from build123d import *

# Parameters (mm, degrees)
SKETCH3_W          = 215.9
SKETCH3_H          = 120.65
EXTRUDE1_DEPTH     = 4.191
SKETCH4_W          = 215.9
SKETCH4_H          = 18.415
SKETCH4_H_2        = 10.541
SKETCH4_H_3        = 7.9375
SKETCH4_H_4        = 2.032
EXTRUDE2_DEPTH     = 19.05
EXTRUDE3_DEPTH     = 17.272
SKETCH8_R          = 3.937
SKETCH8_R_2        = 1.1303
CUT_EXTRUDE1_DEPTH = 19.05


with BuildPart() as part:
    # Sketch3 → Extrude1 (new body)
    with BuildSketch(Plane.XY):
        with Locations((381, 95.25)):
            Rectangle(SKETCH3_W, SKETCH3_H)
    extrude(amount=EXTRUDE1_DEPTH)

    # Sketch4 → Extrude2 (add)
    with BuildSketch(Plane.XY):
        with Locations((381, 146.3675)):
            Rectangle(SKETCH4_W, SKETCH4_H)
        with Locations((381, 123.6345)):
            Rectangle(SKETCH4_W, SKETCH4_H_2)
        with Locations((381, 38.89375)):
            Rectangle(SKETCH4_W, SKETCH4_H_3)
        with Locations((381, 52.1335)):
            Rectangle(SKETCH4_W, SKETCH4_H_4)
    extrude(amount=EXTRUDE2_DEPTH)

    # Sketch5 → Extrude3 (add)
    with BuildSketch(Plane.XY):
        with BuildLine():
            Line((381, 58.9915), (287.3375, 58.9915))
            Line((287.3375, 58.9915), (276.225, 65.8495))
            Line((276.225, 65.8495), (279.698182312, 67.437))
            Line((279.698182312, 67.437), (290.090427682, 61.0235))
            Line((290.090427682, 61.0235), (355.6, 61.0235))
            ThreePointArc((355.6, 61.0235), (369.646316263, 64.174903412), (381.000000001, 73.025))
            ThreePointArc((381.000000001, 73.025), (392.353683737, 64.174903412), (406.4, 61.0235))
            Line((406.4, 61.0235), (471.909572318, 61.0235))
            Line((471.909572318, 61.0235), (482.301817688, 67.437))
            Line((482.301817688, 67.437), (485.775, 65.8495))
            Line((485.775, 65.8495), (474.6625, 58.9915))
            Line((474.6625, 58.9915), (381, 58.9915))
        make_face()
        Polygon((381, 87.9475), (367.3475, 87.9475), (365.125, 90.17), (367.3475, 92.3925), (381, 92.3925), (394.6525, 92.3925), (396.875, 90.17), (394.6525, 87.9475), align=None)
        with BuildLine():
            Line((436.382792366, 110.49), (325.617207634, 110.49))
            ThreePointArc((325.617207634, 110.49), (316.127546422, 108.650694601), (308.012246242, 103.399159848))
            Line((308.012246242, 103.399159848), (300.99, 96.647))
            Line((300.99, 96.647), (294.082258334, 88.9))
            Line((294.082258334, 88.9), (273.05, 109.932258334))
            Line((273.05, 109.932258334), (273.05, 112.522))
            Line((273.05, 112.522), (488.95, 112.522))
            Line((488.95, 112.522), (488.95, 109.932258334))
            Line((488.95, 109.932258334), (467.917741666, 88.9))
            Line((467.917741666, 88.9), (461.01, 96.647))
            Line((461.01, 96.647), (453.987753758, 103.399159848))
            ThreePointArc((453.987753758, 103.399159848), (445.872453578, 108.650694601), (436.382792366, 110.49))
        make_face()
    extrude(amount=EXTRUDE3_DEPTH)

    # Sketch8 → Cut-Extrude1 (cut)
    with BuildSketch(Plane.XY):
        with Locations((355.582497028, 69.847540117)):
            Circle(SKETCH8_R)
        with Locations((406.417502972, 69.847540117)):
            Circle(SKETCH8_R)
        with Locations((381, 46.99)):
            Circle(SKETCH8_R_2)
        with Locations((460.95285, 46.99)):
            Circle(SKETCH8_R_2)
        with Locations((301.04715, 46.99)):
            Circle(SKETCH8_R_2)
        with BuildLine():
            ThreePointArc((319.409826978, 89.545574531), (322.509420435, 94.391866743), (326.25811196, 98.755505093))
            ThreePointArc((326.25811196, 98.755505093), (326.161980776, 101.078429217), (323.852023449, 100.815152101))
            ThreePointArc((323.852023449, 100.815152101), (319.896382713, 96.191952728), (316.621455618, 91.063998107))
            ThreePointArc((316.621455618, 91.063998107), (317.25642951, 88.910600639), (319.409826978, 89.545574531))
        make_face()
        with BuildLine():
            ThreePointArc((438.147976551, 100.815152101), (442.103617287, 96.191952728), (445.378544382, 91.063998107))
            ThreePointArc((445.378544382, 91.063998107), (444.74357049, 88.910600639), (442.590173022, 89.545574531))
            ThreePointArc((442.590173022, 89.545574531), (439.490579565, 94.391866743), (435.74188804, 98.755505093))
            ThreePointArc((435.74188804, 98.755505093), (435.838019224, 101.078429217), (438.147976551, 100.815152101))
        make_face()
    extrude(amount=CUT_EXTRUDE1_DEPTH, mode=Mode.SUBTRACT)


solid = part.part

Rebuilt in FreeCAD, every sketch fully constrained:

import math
import FreeCAD as App
import Part
import Sketcher
from FreeCAD import Vector
Q = App.Units.Quantity


def add_polygon(sketch, points):
    """Adds a closed chain of lines whose ends are joined by coincident constraints."""
    first, n = sketch.GeometryCount, len(points)
    for a, b in zip(points, points[1:] + points[:1]):
        sketch.addGeometry(Part.LineSegment(App.Vector(*a, 0), App.Vector(*b, 0)), False)
    for i in range(n):
        sketch.addConstraint(Sketcher.Constraint("Coincident", first + i, 2, first + (i + 1) % n, 1))

doc = App.newDocument("Part")
params = doc.addObject("Spreadsheet::Sheet", "Params")
for row, (alias, value) in enumerate([
    ("sketch1_width", "8.5 in"),
    ("sketch1_height", "4.75 in"),
    ("pad1_length", "0.165 in"),
    ("sketch2_width", "8.5 in"),
    ("sketch2_height", "0.08 in"),
    ("sketch2_height2", "0.725 in"),
    ("sketch2_height3", "0.415 in"),
    ("sketch2_height4", "0.3125 in"),
    ("pad2_length", "0.75 in"),
    ("sketch3_radius", "1 in"),
    ("sketch3_width", "8.5 in"),
    ("sketch3_width2", "7.375 in"),
    ("sketch3_width3", "1.075 in"),
    ("pad3_length", "0.68 in"),
    ("sketch4_diameter", "0.31 in"),
    ("sketch4_diameter2", "0.089 in"),
    ("sketch4_radius", "0.0625 in"),
    ("pocket1_length", "0.75 in"),
], start=1):
    params.set(f"A{row}", alias)
    params.set(f"B{row}", "=" + value)
    params.setAlias(f"B{row}", alias)

body = doc.addObject("PartDesign::Body", "Body")

sketch1 = body.newObject("Sketcher::SketchObject", "Sketch")
sketch1.AttachmentSupport = (doc.getObject("XY_Plane"), [""])
sketch1.MapMode = "FlatFace"
add_polygon(sketch1, [(273.05, 155.575), (273.05, 34.925), (488.95, 34.925), (488.95, 155.575)])
sketch1.addConstraint([
    Sketcher.Constraint("Vertical", 0),
    Sketcher.Constraint("Horizontal", 1),
    Sketcher.Constraint("Vertical", 2),
    Sketcher.Constraint("Horizontal", 3),
    Sketcher.Constraint("DistanceX", 1, 1, 1, 2, Q("8.5 in")),
    Sketcher.Constraint("DistanceY", 0, 2, 0, 1, Q("4.75 in")),
    Sketcher.Constraint("DistanceX", -1, 1, 0, 2, Q("10.75 in")),
    Sketcher.Constraint("DistanceY", -1, 1, 0, 2, Q("1.375 in")),
])
sketch1.setExpression("Constraints[8]", "Params.sketch1_width")
sketch1.setExpression("Constraints[9]", "Params.sketch1_height")
pad1 = body.newObject("PartDesign::Pad", "Pad")
pad1.Profile = sketch1
pad1.setExpression("Length", "Params.pad1_length")

sketch2 = body.newObject("Sketcher::SketchObject", "Sketch001")
sketch2.AttachmentSupport = (doc.getObject("XY_Plane"), [""])
sketch2.MapMode = "FlatFace"
add_polygon(sketch2, [(273.05, 155.575), (273.05, 137.16), (488.95, 137.16), (488.95, 155.575)])
add_polygon(sketch2, [(273.05, 128.905), (273.05, 118.364), (488.95, 118.364), (488.95, 128.905)])
add_polygon(sketch2, [(273.05, 42.8625), (273.05, 34.925), (488.95, 34.925), (488.95, 42.8625)])
add_polygon(sketch2, [(273.05, 53.1495), (273.05, 51.1175), (488.95, 51.1175), (488.95, 53.1495)])
sketch2.addConstraint([
    Sketcher.Constraint("Vertical", 0),
    Sketcher.Constraint("Horizontal", 1),
    Sketcher.Constraint("Vertical", 2),
    Sketcher.Constraint("Horizontal", 3),
    Sketcher.Constraint("Vertical", 4),
    Sketcher.Constraint("Horizontal", 5),
    Sketcher.Constraint("Vertical", 6),
    Sketcher.Constraint("Horizontal", 7),
    Sketcher.Constraint("Vertical", 8),
    Sketcher.Constraint("Horizontal", 9),
    Sketcher.Constraint("Vertical", 10),
    Sketcher.Constraint("Horizontal", 11),
    Sketcher.Constraint("Vertical", 12),
    Sketcher.Constraint("Horizontal", 13),
    Sketcher.Constraint("Vertical", 14),
    Sketcher.Constraint("Horizontal", 15),
    Sketcher.Constraint("Vertical", 3, 2, 4, 2),
    Sketcher.Constraint("Vertical", 2, 2, 5, 2),
    Sketcher.Constraint("Vertical", 7, 2, 8, 2),
    Sketcher.Constraint("Vertical", 6, 2, 9, 2),
    Sketcher.Constraint("Vertical", 11, 2, 12, 2),
    Sketcher.Constraint("Vertical", 10, 2, 13, 2),
    Sketcher.Constraint("DistanceX", 1, 1, 1, 2, Q("8.5 in")),
    Sketcher.Constraint("DistanceY", 12, 2, 12, 1, Q("0.08 in")),
    Sketcher.Constraint("DistanceY", -1, 1, 0, 2, Q("5.4 in")),
    Sketcher.Constraint("DistanceY", 8, 2, 7, 2, Q("3.7 in")),
    Sketcher.Constraint("DistanceY", 0, 2, 0, 1, Q("0.725 in")),
    Sketcher.Constraint("DistanceY", 4, 2, 4, 1, Q("0.415 in")),
    Sketcher.Constraint("DistanceY", 8, 2, 8, 1, Q("0.3125 in")),
    Sketcher.Constraint("DistanceX", -1, 1, 0, 2, Q("10.75 in")),
    Sketcher.Constraint("DistanceY", -1, 1, 4, 2, Q("4.66 in")),
    Sketcher.Constraint("DistanceY", 11, 2, 12, 2, Q("0.325 in")),
])
sketch2.setExpression("Constraints[38]", "Params.sketch2_width")
sketch2.setExpression("Constraints[39]", "Params.sketch2_height")
sketch2.setExpression("Constraints[42]", "Params.sketch2_height2")
sketch2.setExpression("Constraints[43]", "Params.sketch2_height3")
sketch2.setExpression("Constraints[44]", "Params.sketch2_height4")
pad2 = body.newObject("PartDesign::Pad", "Pad001")
pad2.Profile = sketch2
pad2.setExpression("Length", "Params.pad2_length")

sketch3 = body.newObject("Sketcher::SketchObject", "Sketch002")
sketch3.AttachmentSupport = (doc.getObject("XY_Plane"), [""])
sketch3.MapMode = "FlatFace"
sketch3.addGeometry(Part.LineSegment(Vector(276.225, 65.8495, 0), Vector(287.3375, 58.9915, 0)), False)
sketch3.addGeometry(Part.LineSegment(Vector(287.3375, 58.9915, 0), Vector(474.6625, 58.9915, 0)), False)
sketch3.addGeometry(Part.LineSegment(Vector(474.6625, 58.9915, 0), Vector(485.775, 65.8495, 0)), False)
sketch3.addGeometry(Part.LineSegment(Vector(485.775, 65.8495, 0), Vector(482.301818, 67.437, 0)), False)
sketch3.addGeometry(Part.LineSegment(Vector(482.301818, 67.437, 0), Vector(471.909572, 61.0235, 0)), False)
sketch3.addGeometry(Part.LineSegment(Vector(471.909572, 61.0235, 0), Vector(406.4, 61.0235, 0)), False)
sketch3.addGeometry(Part.ArcOfCircle(Part.Circle(Vector(406.4, 93.902557, 0), Vector(0, 0, 1), 32.879057), math.radians(-140.581469), math.radians(-90)), False)
sketch3.addGeometry(Part.ArcOfCircle(Part.Circle(Vector(355.6, 93.902557, 0), Vector(0, 0, 1), 32.879057), math.radians(-90), math.radians(-39.418531)), False)
sketch3.addGeometry(Part.LineSegment(Vector(355.6, 61.0235, 0), Vector(290.090428, 61.0235, 0)), False)
sketch3.addGeometry(Part.LineSegment(Vector(290.090428, 61.0235, 0), Vector(279.698182, 67.437, 0)), False)
sketch3.addGeometry(Part.LineSegment(Vector(279.698182, 67.437, 0), Vector(276.225, 65.8495, 0)), False)
add_polygon(sketch3, [(367.3475, 87.9475), (394.6525, 87.9475), (396.875, 90.17), (394.6525, 92.3925), (367.3475, 92.3925), (365.125, 90.17)])
sketch3.addGeometry(Part.LineSegment(Vector(325.617208, 110.49, 0), Vector(436.382792, 110.49, 0)), False)
sketch3.addGeometry(Part.ArcOfCircle(Part.Circle(Vector(436.382792, 85.09, 0), Vector(0, 0, 1), 25.4), math.radians(46.123303), math.radians(90)), False)
sketch3.addGeometry(Part.LineSegment(Vector(453.987754, 103.39916, 0), Vector(461.01, 96.647, 0)), False)
sketch3.addGeometry(Part.LineSegment(Vector(461.01, 96.647, 0), Vector(467.917742, 88.9, 0)), False)
sketch3.addGeometry(Part.LineSegment(Vector(467.917742, 88.9, 0), Vector(488.95, 109.932258, 0)), False)
sketch3.addGeometry(Part.LineSegment(Vector(488.95, 109.932258, 0), Vector(488.95, 112.522, 0)), False)
sketch3.addGeometry(Part.LineSegment(Vector(488.95, 112.522, 0), Vector(273.05, 112.522, 0)), False)
sketch3.addGeometry(Part.LineSegment(Vector(273.05, 112.522, 0), Vector(273.05, 109.932258, 0)), False)
sketch3.addGeometry(Part.LineSegment(Vector(273.05, 109.932258, 0), Vector(294.082258, 88.9, 0)), False)
sketch3.addGeometry(Part.LineSegment(Vector(294.082258, 88.9, 0), Vector(300.99, 96.647, 0)), False)
sketch3.addGeometry(Part.LineSegment(Vector(300.99, 96.647, 0), Vector(308.012246, 103.39916, 0)), False)
sketch3.addGeometry(Part.ArcOfCircle(Part.Circle(Vector(325.617208, 85.09, 0), Vector(0, 0, 1), 25.4), math.radians(90), math.radians(133.876697)), False)
sketch3.addConstraint([
    Sketcher.Constraint("Coincident", 0, 2, 1, 1),
    Sketcher.Constraint("Coincident", 1, 2, 2, 1),
    Sketcher.Constraint("Coincident", 2, 2, 3, 1),
    Sketcher.Constraint("Coincident", 3, 2, 4, 1),
    Sketcher.Constraint("Coincident", 4, 2, 5, 1),
    Sketcher.Constraint("Tangent", 5, 2, 6, 2),
    Sketcher.Constraint("Coincident", 6, 1, 7, 2),
    Sketcher.Constraint("Tangent", 7, 1, 8, 1),
    Sketcher.Constraint("Coincident", 8, 2, 9, 1),
    Sketcher.Constraint("Coincident", 9, 2, 10, 1),
    Sketcher.Constraint("Coincident", 10, 2, 0, 1),
    Sketcher.Constraint("Tangent", 17, 2, 18, 2),
    Sketcher.Constraint("Tangent", 18, 1, 19, 1),
    Sketcher.Constraint("Coincident", 19, 2, 20, 1),
    Sketcher.Constraint("Coincident", 20, 2, 21, 1),
    Sketcher.Constraint("Coincident", 21, 2, 22, 1),
    Sketcher.Constraint("Coincident", 22, 2, 23, 1),
    Sketcher.Constraint("Coincident", 23, 2, 24, 1),
    Sketcher.Constraint("Coincident", 24, 2, 25, 1),
    Sketcher.Constraint("Coincident", 25, 2, 26, 1),
    Sketcher.Constraint("Coincident", 26, 2, 27, 1),
    Sketcher.Constraint("Tangent", 27, 2, 28, 2),
    Sketcher.Constraint("Tangent", 28, 1, 17, 1),
    Sketcher.Constraint("Horizontal", 1),
    Sketcher.Constraint("Horizontal", 5),
    Sketcher.Constraint("Horizontal", 8),
    Sketcher.Constraint("Horizontal", 11),
    Sketcher.Constraint("Horizontal", 14),
    Sketcher.Constraint("Horizontal", 17),
    Sketcher.Constraint("Vertical", 22),
    Sketcher.Constraint("Horizontal", 23),
    Sketcher.Constraint("Vertical", 24),
    Sketcher.Constraint("Equal", 6, 7),
    Sketcher.Constraint("Equal", 18, 28),
    Sketcher.Constraint("Parallel", 2, 4),
    Sketcher.Constraint("Parallel", 0, 9),
    Sketcher.Constraint("Perpendicular", 12, 13),
    Sketcher.Constraint("Perpendicular", 13, 15),
    Sketcher.Constraint("Perpendicular", 15, 16),
    Sketcher.Constraint("Perpendicular", 16, 21),
    Sketcher.Constraint("Perpendicular", 21, 25),
    Sketcher.Constraint("Horizontal", 6, 3, 7, 3),
    Sketcher.Constraint("Horizontal", 3, 2, 9, 2),
    Sketcher.Constraint("Horizontal", 2, 2, 10, 2),
    Sketcher.Constraint("Horizontal", 12, 2, 15, 2),
    Sketcher.Constraint("Horizontal", 21, 2, 24, 2),
    Sketcher.Constraint("Horizontal", 20, 2, 25, 2),
    Sketcher.Constraint("Horizontal", 19, 2, 26, 2),
    Sketcher.Constraint("Horizontal", 18, 1, 27, 2),
    Sketcher.Constraint("Vertical", 11, 2, 13, 2),
    Sketcher.Constraint("Vertical", 14, 2, 16, 2),
    Sketcher.Constraint("Equal", 5, 8),
    Sketcher.Constraint("Equal", 0, 2),
    Sketcher.Constraint("Equal", 3, 10),
    Sketcher.Constraint("Equal", 20, 26),
    Sketcher.Constraint("Radius", 18, Q("1 in")),
    Sketcher.Constraint("DistanceX", 23, 2, 23, 1, Q("8.5 in")),
    Sketcher.Constraint("DistanceX", -1, 1, 6, 3, Q("16 in")),
    Sketcher.Constraint("DistanceX", -1, 1, 7, 3, Q("14 in")),
    Sketcher.Constraint("DistanceY", -1, 1, 20, 2, Q("3.5 in")),
    Sketcher.Constraint("DistanceY", 18, 3, 12, 2, Q("0.2 in")),
    Sketcher.Constraint("DistanceX", 19, 2, 21, 2, Q("1.1 in")),
    Sketcher.Constraint("DistanceX", 1, 1, 1, 2, Q("7.375 in")),
    Sketcher.Constraint("DistanceX", 11, 1, 11, 2, Q("1.075 in")),
    Sketcher.Constraint("DistanceY", -1, 1, 18, 3, Q("3.35 in")),
    Sketcher.Constraint("DistanceX", -1, 1, 19, 2, Q("18.15 in")),
    Sketcher.Constraint("DistanceY", -1, 1, 22, 2, Q("4.43 in")),
    Sketcher.Constraint("DistanceY", 1, 2, 2, 2, Q("0.27 in")),
    Sketcher.Constraint("DistanceY", 1, 2, 4, 2, Q("0.08 in")),
    Sketcher.Constraint("DistanceY", 5, 2, 11, 2, Q("1.06 in")),
    Sketcher.Constraint("DistanceY", 3, 2, 19, 2, Q("1.15 in")),
    Sketcher.Constraint("DistanceX", -1, 1, 2, 2, Q("19.125 in")),
    Sketcher.Constraint("DistanceY", -1, 1, 3, 2, Q("2.655 in")),
    Sketcher.Constraint("DistanceY", -1, 1, 6, 1, Q("2.875 in")),
    Sketcher.Constraint("DistanceX", -1, 1, 12, 2, Q("15.625 in")),
    Sketcher.Constraint("DistanceX", -1, 1, 15, 2, Q("14.375 in")),
    Sketcher.Constraint("DistanceY", 22, 1, 22, 2, 2.589742),
    Sketcher.Constraint("DistanceY", 18, 1, 21, 2, 6.533098),
    Sketcher.Constraint("Distance", 3, 3.818789),
])
sketch3.setExpression("Constraints[61]", "Params.sketch3_radius")
sketch3.setExpression("Constraints[62]", "Params.sketch3_width")
sketch3.setExpression("Constraints[68]", "Params.sketch3_width2")
sketch3.setExpression("Constraints[69]", "Params.sketch3_width3")
pad3 = body.newObject("PartDesign::Pad", "Pad002")
pad3.Profile = sketch3
pad3.setExpression("Length", "Params.pad3_length")

sketch4 = body.newObject("Sketcher::SketchObject", "Sketch003")
sketch4.AttachmentSupport = (doc.getObject("XY_Plane"), [""])
sketch4.MapMode = "FlatFace"
sketch4.addGeometry([
    Part.Circle(Vector(355.582497, 69.84754, 0), Vector(0, 0, 1), 3.937),
    Part.Circle(Vector(406.417503, 69.84754, 0), Vector(0, 0, 1), 3.937),
    Part.Circle(Vector(381, 46.99, 0), Vector(0, 0, 1), 1.1303),
    Part.Circle(Vector(460.95285, 46.99, 0), Vector(0, 0, 1), 1.1303),
    Part.Circle(Vector(301.04715, 46.99, 0), Vector(0, 0, 1), 1.1303),
    Part.ArcOfCircle(Part.Circle(Vector(355.341189, 69.978946, 0), Vector(0, 0, 1), 40.913515), math.radians(135.303528), math.radians(151.429246)),
    Part.ArcOfCircle(Part.Circle(Vector(325.129473, 99.872249, 0), Vector(0, 0, 1), 1.587748), math.radians(-44.696472), math.radians(143.568453)),
    Part.ArcOfCircle(Part.Circle(Vector(354.987635, 70.171476, 0), Vector(0, 0, 1), 43.685938), math.radians(135.456224), math.radians(151.429246)),
    Part.ArcOfCircle(Part.Circle(Vector(318.015641, 90.304786, 0), Vector(0, 0, 1), 1.5875), math.radians(151.429246), math.radians(331.429246)),
    Part.ArcOfCircle(Part.Circle(Vector(407.012365, 70.171476, 0), Vector(0, 0, 1), 43.685938), math.radians(28.570754), math.radians(44.543776)),
    Part.ArcOfCircle(Part.Circle(Vector(436.870527, 99.872249, 0), Vector(0, 0, 1), 1.587748), math.radians(36.431547), math.radians(224.696472)),
    Part.ArcOfCircle(Part.Circle(Vector(406.658811, 69.978946, 0), Vector(0, 0, 1), 40.913515), math.radians(28.570754), math.radians(44.696472)),
    Part.ArcOfCircle(Part.Circle(Vector(443.984359, 90.304786, 0), Vector(0, 0, 1), 1.5875), math.radians(-151.429246), math.radians(28.570754)),
], False)
sketch4.addConstraint([
    Sketcher.Constraint("Tangent", 5, 1, 6, 1),
    Sketcher.Constraint("Coincident", 6, 2, 7, 1),
    Sketcher.Constraint("Tangent", 7, 2, 8, 1),
    Sketcher.Constraint("Tangent", 8, 2, 5, 2),
    Sketcher.Constraint("Coincident", 9, 2, 10, 1),
    Sketcher.Constraint("Tangent", 10, 2, 11, 2),
    Sketcher.Constraint("Tangent", 11, 1, 12, 1),
    Sketcher.Constraint("Tangent", 12, 2, 9, 1),
    Sketcher.Constraint("Equal", 0, 1),
    Sketcher.Constraint("Equal", 2, 3),
    Sketcher.Constraint("Equal", 3, 4),
    Sketcher.Constraint("Equal", 7, 9),
    Sketcher.Constraint("Equal", 6, 10),
    Sketcher.Constraint("Equal", 5, 11),
    Sketcher.Constraint("Equal", 8, 12),
    Sketcher.Constraint("Horizontal", 0, 3, 1, 3),
    Sketcher.Constraint("Horizontal", 2, 3, 3, 3),
    Sketcher.Constraint("Horizontal", 3, 3, 4, 3),
    Sketcher.Constraint("Horizontal", 7, 3, 9, 3),
    Sketcher.Constraint("Horizontal", 6, 3, 10, 3),
    Sketcher.Constraint("Horizontal", 5, 3, 11, 3),
    Sketcher.Constraint("Horizontal", 8, 3, 12, 3),
    Sketcher.Constraint("Diameter", 0, Q("0.31 in")),
    Sketcher.Constraint("Diameter", 2, Q("0.089 in")),
    Sketcher.Constraint("DistanceX", -1, 1, 2, 3, Q("15 in")),
    Sketcher.Constraint("Radius", 8, Q("0.0625 in")),
    Sketcher.Constraint("DistanceY", -1, 1, 2, 3, Q("1.85 in")),
    Sketcher.Constraint("Radius", 5, 40.913515),
    Sketcher.Constraint("Radius", 6, 1.587748),
    Sketcher.Constraint("Radius", 7, 43.685938),
    Sketcher.Constraint("DistanceX", 4, 3, 3, 3, Q("6.2955 in")),
    Sketcher.Constraint("DistanceY", -1, 1, 7, 2, 91.063998),
    Sketcher.Constraint("DistanceY", 9, 3, 11, 1, 19.374099),
    Sketcher.Constraint("DistanceY", -1, 1, 0, 3, 69.84754),
    Sketcher.Constraint("DistanceX", -1, 1, 3, 3, 460.95285),
    Sketcher.Constraint("DistanceX", -1, 1, 5, 3, 355.341189),
    Sketcher.Constraint("DistanceY", -1, 1, 6, 3, 99.872249),
    Sketcher.Constraint("DistanceX", -1, 1, 8, 3, 318.015641),
    Sketcher.Constraint("DistanceX", -1, 1, 11, 3, 406.658811),
    Sketcher.Constraint("DistanceX", 5, 3, 0, 3, 0.241308),
    Sketcher.Constraint("DistanceX", 6, 3, 1, 3, 81.28803),
])
sketch4.setExpression("Constraints[22]", "Params.sketch4_diameter")
sketch4.setExpression("Constraints[23]", "Params.sketch4_diameter2")
sketch4.setExpression("Constraints[25]", "Params.sketch4_radius")
pocket1 = body.newObject("PartDesign::Pocket", "Pocket")
pocket1.Profile = sketch4
pocket1.setExpression("Length", "Params.pocket1_length")
pocket1.Reversed = True

doc.recompute()
